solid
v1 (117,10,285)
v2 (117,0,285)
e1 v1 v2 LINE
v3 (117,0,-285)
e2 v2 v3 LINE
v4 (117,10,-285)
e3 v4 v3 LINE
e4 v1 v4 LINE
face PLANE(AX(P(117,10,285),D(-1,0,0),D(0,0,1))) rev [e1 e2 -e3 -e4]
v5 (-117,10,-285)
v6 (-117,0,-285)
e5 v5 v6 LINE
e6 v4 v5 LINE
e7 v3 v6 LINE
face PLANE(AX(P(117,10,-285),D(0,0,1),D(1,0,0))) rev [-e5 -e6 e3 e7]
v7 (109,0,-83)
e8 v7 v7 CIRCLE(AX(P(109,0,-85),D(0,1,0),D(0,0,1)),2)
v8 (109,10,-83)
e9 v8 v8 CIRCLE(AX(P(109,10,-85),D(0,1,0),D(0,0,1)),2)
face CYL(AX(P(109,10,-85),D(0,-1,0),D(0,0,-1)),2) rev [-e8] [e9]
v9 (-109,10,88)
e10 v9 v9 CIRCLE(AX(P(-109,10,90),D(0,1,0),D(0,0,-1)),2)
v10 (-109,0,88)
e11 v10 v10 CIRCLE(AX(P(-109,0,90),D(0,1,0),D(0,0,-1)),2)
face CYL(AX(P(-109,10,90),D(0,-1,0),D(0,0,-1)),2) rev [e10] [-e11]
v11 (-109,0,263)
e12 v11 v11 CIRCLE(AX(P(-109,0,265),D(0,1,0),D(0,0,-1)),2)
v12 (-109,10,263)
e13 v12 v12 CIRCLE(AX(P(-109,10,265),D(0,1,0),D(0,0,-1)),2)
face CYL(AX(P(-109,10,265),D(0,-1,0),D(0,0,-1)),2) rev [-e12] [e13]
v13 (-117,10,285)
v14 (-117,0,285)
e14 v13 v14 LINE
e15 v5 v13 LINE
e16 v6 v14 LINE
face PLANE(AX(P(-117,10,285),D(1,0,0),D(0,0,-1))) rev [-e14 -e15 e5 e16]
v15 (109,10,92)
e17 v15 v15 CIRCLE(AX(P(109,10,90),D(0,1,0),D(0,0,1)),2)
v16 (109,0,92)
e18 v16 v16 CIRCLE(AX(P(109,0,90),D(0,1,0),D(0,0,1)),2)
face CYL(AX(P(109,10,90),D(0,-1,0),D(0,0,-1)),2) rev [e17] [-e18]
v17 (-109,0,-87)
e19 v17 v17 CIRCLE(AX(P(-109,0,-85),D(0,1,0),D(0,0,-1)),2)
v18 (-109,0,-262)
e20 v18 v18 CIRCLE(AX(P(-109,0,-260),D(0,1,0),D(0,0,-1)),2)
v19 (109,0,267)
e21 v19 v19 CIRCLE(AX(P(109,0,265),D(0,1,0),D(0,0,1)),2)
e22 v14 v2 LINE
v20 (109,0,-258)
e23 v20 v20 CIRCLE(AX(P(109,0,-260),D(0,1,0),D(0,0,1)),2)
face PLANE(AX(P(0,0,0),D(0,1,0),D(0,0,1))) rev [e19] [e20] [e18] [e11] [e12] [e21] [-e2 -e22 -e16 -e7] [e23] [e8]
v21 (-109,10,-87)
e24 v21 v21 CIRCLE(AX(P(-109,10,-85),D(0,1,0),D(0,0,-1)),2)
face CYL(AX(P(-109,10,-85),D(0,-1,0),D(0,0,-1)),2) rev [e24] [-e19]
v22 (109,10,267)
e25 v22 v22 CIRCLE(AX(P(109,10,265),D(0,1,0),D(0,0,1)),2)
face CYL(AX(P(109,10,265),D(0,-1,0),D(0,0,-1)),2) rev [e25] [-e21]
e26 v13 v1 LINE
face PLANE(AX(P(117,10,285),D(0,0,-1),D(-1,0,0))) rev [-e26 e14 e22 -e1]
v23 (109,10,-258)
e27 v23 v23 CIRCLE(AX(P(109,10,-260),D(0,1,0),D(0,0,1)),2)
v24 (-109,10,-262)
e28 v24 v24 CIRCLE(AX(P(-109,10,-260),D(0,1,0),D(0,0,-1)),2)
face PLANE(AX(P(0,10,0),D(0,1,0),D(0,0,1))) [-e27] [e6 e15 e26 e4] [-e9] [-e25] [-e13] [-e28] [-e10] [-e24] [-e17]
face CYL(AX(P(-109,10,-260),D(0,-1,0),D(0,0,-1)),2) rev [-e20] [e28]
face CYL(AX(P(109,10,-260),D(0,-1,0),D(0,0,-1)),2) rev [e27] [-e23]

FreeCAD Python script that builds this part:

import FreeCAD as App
import Part
import Sketcher
from FreeCAD import Vector
Q = App.Units.Quantity


def add_polygon(sketch, points):
    """Adds a closed chain of lines whose ends are joined by coincident constraints."""
    first, n = sketch.GeometryCount, len(points)
    for a, b in zip(points, points[1:] + points[:1]):
        sketch.addGeometry(Part.LineSegment(App.Vector(*a, 0), App.Vector(*b, 0)), False)
    for i in range(n):
        sketch.addConstraint(Sketcher.Constraint("Coincident", first + i, 2, first + (i + 1) % n, 1))

doc = App.newDocument("Part")
body = doc.addObject("PartDesign::Body", "Body")

# Sketch on XZ plane
sketch1 = body.newObject("Sketcher::SketchObject", "Sketch")
sketch1.AttachmentSupport = (doc.getObject("XZ_Plane"), [""])
sketch1.MapMode = "FlatFace"
add_polygon(sketch1, [(-117, -285), (-117, 285), (117, 285), (117, -285)])  # lines 0-3
sketch1.addGeometry(Part.Circle(Vector(-109, 265, 0), Vector(0, 0, 1), 2), False)  # 4
sketch1.addGeometry(Part.Circle(Vector(-109, 90, 0), Vector(0, 0, 1), 2), False)  # 5
sketch1.addGeometry(Part.Circle(Vector(109, 265, 0), Vector(0, 0, 1), 2), False)  # 6
sketch1.addGeometry(Part.Circle(Vector(109, 90, 0), Vector(0, 0, 1), 2), False)  # 7
sketch1.addGeometry(Part.Circle(Vector(-109, -85, 0), Vector(0, 0, 1), 2), False)  # 8
sketch1.addGeometry(Part.Circle(Vector(-109, -260, 0), Vector(0, 0, 1), 2), False)  # 9
sketch1.addGeometry(Part.Circle(Vector(109, -85, 0), Vector(0, 0, 1), 2), False)  # 10
sketch1.addGeometry(Part.Circle(Vector(109, -260, 0), Vector(0, 0, 1), 2), False)  # 11
sketch1.addConstraint([
    Sketcher.Constraint("Vertical", 0),
    Sketcher.Constraint("Horizontal", 1),
    Sketcher.Constraint("Vertical", 2),
    Sketcher.Constraint("Horizontal", 3),
    Sketcher.Constraint("Equal", 4, 5),
    Sketcher.Constraint("Equal", 5, 6),
    Sketcher.Constraint("Equal", 6, 7),
    Sketcher.Constraint("Equal", 7, 8),
    Sketcher.Constraint("Equal", 8, 9),
    Sketcher.Constraint("Equal", 9, 10),
    Sketcher.Constraint("Equal", 10, 11),
    Sketcher.Constraint("Symmetric", 0, 2, 2, 2, -1, 1),
    Sketcher.Constraint("Symmetric", 4, 3, 6, 3, -2),
    Sketcher.Constraint("Symmetric", 5, 3, 7, 3, -2),
    Sketcher.Constraint("Symmetric", 8, 3, 10, 3, -2),
    Sketcher.Constraint("Symmetric", 9, 3, 11, 3, -2),
    Sketcher.Constraint("Vertical", 4, 3, 5, 3),
    Sketcher.Constraint("Vertical", 5, 3, 8, 3),
    Sketcher.Constraint("Vertical", 8, 3, 9, 3),
    Sketcher.Constraint("Diameter", 4, Q("4 mm")),
    Sketcher.Constraint("DistanceX", 1, 1, 1, 2, Q("234 mm")),
    Sketcher.Constraint("DistanceY", 0, 1, 0, 2, Q("570 mm")),
    Sketcher.Constraint("DistanceX", 4, 3, -1, 1, Q("109 mm")),
    Sketcher.Constraint("DistanceY", -1, 1, 4, 3, Q("265 mm")),
    Sketcher.Constraint("DistanceY", -1, 1, 5, 3, Q("90 mm")),
    Sketcher.Constraint("DistanceY", 8, 3, -1, 1, Q("85 mm")),
    Sketcher.Constraint("DistanceY", 9, 3, -1, 1, Q("260 mm")),
])
pad1 = body.newObject("PartDesign::Pad", "Pad")
pad1.Profile = sketch1
pad1.Length = 10
pad1.Reversed = True

doc.recompute()
